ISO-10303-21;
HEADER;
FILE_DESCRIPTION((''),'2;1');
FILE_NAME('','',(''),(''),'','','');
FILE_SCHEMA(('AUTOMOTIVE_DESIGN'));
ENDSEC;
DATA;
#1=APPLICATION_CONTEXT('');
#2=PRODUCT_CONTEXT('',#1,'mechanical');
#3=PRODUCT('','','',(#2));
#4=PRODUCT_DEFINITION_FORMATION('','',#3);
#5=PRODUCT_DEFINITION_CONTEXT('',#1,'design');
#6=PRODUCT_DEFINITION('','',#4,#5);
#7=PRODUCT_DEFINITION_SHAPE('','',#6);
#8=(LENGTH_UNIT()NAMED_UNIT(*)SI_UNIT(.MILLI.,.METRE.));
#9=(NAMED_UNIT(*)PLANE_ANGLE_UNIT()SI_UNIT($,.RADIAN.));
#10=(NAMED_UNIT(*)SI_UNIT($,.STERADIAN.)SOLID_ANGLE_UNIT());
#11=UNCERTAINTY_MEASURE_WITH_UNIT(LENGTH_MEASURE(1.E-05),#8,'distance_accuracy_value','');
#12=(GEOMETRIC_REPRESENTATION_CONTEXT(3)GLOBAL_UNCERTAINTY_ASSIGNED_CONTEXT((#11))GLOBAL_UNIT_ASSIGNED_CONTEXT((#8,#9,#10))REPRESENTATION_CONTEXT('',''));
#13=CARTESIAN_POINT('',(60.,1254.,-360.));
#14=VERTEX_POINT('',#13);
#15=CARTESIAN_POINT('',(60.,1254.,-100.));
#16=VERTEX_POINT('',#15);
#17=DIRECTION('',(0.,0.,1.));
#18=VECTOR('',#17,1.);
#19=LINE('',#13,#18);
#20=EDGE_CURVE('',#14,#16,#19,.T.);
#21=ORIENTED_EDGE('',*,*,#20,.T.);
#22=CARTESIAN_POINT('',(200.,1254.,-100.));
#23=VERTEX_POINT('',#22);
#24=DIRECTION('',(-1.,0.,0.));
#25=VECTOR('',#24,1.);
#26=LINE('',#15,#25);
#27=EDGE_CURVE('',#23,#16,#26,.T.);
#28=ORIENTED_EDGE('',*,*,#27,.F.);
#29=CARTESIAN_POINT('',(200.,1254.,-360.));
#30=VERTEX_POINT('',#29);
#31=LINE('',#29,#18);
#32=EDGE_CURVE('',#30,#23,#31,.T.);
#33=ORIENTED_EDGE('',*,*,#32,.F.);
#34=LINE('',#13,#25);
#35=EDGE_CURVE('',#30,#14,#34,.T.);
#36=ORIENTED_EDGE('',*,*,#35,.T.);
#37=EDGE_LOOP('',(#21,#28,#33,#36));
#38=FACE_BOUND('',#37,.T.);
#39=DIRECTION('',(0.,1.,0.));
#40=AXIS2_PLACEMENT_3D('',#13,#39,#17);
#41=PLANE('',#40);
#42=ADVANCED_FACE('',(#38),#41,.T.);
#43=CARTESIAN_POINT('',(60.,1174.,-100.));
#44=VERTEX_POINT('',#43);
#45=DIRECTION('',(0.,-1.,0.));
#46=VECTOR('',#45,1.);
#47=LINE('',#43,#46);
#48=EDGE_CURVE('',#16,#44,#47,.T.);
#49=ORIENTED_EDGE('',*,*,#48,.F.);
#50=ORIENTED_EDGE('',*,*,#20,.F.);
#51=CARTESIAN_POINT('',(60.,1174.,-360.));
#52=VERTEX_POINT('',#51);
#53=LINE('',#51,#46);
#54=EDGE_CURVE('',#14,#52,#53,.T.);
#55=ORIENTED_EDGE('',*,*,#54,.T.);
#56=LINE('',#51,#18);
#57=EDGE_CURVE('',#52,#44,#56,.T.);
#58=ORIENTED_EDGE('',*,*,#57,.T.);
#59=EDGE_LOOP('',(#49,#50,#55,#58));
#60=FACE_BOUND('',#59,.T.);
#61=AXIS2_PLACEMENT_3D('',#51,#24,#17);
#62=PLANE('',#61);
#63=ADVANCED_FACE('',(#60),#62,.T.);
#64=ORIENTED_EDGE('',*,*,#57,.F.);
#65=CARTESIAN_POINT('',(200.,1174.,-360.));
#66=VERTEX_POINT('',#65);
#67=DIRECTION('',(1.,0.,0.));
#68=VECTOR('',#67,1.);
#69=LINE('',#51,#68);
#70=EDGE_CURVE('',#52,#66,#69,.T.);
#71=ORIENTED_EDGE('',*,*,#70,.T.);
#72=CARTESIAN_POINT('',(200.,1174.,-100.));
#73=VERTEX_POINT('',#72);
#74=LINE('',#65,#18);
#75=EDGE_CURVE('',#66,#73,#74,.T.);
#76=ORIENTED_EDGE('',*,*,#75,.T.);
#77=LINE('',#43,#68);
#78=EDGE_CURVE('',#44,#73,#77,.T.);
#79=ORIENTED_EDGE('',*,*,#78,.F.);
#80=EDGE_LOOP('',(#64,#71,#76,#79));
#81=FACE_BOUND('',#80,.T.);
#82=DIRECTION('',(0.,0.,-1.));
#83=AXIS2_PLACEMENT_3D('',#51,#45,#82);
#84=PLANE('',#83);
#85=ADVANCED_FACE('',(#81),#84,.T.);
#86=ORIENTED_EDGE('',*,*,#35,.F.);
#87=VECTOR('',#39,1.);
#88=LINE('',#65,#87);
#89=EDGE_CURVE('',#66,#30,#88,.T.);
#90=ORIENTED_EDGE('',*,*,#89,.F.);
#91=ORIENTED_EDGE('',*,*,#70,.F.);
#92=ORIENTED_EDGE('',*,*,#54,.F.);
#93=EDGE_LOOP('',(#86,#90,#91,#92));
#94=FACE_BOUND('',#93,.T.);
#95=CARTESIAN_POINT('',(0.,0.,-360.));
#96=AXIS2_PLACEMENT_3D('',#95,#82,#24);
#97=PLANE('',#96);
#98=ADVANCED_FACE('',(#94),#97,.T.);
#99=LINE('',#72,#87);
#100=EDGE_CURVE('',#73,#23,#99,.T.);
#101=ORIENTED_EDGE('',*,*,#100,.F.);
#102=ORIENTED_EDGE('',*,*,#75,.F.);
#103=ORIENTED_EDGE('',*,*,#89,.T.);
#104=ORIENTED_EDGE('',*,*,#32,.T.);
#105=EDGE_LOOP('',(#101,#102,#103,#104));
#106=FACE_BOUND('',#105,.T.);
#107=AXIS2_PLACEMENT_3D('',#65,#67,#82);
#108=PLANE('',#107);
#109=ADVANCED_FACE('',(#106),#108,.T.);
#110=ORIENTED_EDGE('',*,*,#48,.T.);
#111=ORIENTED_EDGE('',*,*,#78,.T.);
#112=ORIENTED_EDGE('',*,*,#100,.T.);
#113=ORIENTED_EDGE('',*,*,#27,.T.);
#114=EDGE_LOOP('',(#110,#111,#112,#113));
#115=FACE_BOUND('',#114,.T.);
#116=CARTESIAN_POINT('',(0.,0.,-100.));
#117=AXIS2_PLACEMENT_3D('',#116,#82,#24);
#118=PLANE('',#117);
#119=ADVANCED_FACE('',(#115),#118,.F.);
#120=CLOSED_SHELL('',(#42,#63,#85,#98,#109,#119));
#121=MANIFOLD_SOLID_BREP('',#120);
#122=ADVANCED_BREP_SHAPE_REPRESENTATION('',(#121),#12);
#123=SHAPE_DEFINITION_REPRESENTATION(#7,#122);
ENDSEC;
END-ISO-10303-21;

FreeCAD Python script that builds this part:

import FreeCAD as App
import Part
import Sketcher
Q = App.Units.Quantity

doc = App.newDocument("Part")
params = doc.addObject("Spreadsheet::Sheet", "Params")
for row, (alias, value) in enumerate([
    ("sketch1_width", "140 mm"),
    ("sketch1_height", "80 mm"),
    ("pad1_length", "260 mm"),
], start=1):
    params.set(f"A{row}", alias)
    params.set(f"B{row}", "=" + value)
    params.setAlias(f"B{row}", alias)

body = doc.addObject("PartDesign::Body", "Body")

# Sketch on XY plane
sketch1 = body.newObject("Sketcher::SketchObject", "Sketch")
sketch1.AttachmentSupport = (doc.getObject("XY_Plane"), [""])
sketch1.MapMode = "FlatFace"
sketch1.AttachmentOffset = App.Placement(App.Vector(0, 0, -100), App.Rotation())
sketch1.addGeometry(Part.LineSegment(App.Vector(60, 1254, 0), App.Vector(60, 1174, 0)), False)
sketch1.addGeometry(Part.LineSegment(App.Vector(60, 1174, 0), App.Vector(200, 1174, 0)), False)
sketch1.addGeometry(Part.LineSegment(App.Vector(200, 1174, 0), App.Vector(200, 1254, 0)), False)
sketch1.addGeometry(Part.LineSegment(App.Vector(200, 1254, 0), App.Vector(60, 1254, 0)), False)
sketch1.addConstraint(Sketcher.Constraint("Coincident", 0, 2, 1, 1))
sketch1.addConstraint(Sketcher.Constraint("Coincident", 1, 2, 2, 1))
sketch1.addConstraint(Sketcher.Constraint("Coincident", 2, 2, 3, 1))
sketch1.addConstraint(Sketcher.Constraint("Coincident", 3, 2, 0, 1))
sketch1.addConstraint(Sketcher.Constraint("Vertical", 0))
sketch1.addConstraint(Sketcher.Constraint("Horizontal", 1))
sketch1.addConstraint(Sketcher.Constraint("Vertical", 2))
sketch1.addConstraint(Sketcher.Constraint("Horizontal", 3))
sketch1.addConstraint(Sketcher.Constraint("DistanceX", 1, 1, 1, 2, Q("140 mm")))
sketch1.addConstraint(Sketcher.Constraint("DistanceY", 0, 2, 0, 1, Q("80 mm")))
sketch1.addConstraint(Sketcher.Constraint("DistanceX", -1, 1, 0, 2, Q("60 mm")))
sketch1.addConstraint(Sketcher.Constraint("DistanceY", -1, 1, 0, 2, Q("1174 mm")))
sketch1.setExpression("Constraints[8]", "Params.sketch1_width")
sketch1.setExpression("Constraints[9]", "Params.sketch1_height")
pad1 = body.newObject("PartDesign::Pad", "Pad")
pad1.Profile = sketch1
pad1.setExpression("Length", "Params.pad1_length")
pad1.Reversed = True

doc.recompute()
